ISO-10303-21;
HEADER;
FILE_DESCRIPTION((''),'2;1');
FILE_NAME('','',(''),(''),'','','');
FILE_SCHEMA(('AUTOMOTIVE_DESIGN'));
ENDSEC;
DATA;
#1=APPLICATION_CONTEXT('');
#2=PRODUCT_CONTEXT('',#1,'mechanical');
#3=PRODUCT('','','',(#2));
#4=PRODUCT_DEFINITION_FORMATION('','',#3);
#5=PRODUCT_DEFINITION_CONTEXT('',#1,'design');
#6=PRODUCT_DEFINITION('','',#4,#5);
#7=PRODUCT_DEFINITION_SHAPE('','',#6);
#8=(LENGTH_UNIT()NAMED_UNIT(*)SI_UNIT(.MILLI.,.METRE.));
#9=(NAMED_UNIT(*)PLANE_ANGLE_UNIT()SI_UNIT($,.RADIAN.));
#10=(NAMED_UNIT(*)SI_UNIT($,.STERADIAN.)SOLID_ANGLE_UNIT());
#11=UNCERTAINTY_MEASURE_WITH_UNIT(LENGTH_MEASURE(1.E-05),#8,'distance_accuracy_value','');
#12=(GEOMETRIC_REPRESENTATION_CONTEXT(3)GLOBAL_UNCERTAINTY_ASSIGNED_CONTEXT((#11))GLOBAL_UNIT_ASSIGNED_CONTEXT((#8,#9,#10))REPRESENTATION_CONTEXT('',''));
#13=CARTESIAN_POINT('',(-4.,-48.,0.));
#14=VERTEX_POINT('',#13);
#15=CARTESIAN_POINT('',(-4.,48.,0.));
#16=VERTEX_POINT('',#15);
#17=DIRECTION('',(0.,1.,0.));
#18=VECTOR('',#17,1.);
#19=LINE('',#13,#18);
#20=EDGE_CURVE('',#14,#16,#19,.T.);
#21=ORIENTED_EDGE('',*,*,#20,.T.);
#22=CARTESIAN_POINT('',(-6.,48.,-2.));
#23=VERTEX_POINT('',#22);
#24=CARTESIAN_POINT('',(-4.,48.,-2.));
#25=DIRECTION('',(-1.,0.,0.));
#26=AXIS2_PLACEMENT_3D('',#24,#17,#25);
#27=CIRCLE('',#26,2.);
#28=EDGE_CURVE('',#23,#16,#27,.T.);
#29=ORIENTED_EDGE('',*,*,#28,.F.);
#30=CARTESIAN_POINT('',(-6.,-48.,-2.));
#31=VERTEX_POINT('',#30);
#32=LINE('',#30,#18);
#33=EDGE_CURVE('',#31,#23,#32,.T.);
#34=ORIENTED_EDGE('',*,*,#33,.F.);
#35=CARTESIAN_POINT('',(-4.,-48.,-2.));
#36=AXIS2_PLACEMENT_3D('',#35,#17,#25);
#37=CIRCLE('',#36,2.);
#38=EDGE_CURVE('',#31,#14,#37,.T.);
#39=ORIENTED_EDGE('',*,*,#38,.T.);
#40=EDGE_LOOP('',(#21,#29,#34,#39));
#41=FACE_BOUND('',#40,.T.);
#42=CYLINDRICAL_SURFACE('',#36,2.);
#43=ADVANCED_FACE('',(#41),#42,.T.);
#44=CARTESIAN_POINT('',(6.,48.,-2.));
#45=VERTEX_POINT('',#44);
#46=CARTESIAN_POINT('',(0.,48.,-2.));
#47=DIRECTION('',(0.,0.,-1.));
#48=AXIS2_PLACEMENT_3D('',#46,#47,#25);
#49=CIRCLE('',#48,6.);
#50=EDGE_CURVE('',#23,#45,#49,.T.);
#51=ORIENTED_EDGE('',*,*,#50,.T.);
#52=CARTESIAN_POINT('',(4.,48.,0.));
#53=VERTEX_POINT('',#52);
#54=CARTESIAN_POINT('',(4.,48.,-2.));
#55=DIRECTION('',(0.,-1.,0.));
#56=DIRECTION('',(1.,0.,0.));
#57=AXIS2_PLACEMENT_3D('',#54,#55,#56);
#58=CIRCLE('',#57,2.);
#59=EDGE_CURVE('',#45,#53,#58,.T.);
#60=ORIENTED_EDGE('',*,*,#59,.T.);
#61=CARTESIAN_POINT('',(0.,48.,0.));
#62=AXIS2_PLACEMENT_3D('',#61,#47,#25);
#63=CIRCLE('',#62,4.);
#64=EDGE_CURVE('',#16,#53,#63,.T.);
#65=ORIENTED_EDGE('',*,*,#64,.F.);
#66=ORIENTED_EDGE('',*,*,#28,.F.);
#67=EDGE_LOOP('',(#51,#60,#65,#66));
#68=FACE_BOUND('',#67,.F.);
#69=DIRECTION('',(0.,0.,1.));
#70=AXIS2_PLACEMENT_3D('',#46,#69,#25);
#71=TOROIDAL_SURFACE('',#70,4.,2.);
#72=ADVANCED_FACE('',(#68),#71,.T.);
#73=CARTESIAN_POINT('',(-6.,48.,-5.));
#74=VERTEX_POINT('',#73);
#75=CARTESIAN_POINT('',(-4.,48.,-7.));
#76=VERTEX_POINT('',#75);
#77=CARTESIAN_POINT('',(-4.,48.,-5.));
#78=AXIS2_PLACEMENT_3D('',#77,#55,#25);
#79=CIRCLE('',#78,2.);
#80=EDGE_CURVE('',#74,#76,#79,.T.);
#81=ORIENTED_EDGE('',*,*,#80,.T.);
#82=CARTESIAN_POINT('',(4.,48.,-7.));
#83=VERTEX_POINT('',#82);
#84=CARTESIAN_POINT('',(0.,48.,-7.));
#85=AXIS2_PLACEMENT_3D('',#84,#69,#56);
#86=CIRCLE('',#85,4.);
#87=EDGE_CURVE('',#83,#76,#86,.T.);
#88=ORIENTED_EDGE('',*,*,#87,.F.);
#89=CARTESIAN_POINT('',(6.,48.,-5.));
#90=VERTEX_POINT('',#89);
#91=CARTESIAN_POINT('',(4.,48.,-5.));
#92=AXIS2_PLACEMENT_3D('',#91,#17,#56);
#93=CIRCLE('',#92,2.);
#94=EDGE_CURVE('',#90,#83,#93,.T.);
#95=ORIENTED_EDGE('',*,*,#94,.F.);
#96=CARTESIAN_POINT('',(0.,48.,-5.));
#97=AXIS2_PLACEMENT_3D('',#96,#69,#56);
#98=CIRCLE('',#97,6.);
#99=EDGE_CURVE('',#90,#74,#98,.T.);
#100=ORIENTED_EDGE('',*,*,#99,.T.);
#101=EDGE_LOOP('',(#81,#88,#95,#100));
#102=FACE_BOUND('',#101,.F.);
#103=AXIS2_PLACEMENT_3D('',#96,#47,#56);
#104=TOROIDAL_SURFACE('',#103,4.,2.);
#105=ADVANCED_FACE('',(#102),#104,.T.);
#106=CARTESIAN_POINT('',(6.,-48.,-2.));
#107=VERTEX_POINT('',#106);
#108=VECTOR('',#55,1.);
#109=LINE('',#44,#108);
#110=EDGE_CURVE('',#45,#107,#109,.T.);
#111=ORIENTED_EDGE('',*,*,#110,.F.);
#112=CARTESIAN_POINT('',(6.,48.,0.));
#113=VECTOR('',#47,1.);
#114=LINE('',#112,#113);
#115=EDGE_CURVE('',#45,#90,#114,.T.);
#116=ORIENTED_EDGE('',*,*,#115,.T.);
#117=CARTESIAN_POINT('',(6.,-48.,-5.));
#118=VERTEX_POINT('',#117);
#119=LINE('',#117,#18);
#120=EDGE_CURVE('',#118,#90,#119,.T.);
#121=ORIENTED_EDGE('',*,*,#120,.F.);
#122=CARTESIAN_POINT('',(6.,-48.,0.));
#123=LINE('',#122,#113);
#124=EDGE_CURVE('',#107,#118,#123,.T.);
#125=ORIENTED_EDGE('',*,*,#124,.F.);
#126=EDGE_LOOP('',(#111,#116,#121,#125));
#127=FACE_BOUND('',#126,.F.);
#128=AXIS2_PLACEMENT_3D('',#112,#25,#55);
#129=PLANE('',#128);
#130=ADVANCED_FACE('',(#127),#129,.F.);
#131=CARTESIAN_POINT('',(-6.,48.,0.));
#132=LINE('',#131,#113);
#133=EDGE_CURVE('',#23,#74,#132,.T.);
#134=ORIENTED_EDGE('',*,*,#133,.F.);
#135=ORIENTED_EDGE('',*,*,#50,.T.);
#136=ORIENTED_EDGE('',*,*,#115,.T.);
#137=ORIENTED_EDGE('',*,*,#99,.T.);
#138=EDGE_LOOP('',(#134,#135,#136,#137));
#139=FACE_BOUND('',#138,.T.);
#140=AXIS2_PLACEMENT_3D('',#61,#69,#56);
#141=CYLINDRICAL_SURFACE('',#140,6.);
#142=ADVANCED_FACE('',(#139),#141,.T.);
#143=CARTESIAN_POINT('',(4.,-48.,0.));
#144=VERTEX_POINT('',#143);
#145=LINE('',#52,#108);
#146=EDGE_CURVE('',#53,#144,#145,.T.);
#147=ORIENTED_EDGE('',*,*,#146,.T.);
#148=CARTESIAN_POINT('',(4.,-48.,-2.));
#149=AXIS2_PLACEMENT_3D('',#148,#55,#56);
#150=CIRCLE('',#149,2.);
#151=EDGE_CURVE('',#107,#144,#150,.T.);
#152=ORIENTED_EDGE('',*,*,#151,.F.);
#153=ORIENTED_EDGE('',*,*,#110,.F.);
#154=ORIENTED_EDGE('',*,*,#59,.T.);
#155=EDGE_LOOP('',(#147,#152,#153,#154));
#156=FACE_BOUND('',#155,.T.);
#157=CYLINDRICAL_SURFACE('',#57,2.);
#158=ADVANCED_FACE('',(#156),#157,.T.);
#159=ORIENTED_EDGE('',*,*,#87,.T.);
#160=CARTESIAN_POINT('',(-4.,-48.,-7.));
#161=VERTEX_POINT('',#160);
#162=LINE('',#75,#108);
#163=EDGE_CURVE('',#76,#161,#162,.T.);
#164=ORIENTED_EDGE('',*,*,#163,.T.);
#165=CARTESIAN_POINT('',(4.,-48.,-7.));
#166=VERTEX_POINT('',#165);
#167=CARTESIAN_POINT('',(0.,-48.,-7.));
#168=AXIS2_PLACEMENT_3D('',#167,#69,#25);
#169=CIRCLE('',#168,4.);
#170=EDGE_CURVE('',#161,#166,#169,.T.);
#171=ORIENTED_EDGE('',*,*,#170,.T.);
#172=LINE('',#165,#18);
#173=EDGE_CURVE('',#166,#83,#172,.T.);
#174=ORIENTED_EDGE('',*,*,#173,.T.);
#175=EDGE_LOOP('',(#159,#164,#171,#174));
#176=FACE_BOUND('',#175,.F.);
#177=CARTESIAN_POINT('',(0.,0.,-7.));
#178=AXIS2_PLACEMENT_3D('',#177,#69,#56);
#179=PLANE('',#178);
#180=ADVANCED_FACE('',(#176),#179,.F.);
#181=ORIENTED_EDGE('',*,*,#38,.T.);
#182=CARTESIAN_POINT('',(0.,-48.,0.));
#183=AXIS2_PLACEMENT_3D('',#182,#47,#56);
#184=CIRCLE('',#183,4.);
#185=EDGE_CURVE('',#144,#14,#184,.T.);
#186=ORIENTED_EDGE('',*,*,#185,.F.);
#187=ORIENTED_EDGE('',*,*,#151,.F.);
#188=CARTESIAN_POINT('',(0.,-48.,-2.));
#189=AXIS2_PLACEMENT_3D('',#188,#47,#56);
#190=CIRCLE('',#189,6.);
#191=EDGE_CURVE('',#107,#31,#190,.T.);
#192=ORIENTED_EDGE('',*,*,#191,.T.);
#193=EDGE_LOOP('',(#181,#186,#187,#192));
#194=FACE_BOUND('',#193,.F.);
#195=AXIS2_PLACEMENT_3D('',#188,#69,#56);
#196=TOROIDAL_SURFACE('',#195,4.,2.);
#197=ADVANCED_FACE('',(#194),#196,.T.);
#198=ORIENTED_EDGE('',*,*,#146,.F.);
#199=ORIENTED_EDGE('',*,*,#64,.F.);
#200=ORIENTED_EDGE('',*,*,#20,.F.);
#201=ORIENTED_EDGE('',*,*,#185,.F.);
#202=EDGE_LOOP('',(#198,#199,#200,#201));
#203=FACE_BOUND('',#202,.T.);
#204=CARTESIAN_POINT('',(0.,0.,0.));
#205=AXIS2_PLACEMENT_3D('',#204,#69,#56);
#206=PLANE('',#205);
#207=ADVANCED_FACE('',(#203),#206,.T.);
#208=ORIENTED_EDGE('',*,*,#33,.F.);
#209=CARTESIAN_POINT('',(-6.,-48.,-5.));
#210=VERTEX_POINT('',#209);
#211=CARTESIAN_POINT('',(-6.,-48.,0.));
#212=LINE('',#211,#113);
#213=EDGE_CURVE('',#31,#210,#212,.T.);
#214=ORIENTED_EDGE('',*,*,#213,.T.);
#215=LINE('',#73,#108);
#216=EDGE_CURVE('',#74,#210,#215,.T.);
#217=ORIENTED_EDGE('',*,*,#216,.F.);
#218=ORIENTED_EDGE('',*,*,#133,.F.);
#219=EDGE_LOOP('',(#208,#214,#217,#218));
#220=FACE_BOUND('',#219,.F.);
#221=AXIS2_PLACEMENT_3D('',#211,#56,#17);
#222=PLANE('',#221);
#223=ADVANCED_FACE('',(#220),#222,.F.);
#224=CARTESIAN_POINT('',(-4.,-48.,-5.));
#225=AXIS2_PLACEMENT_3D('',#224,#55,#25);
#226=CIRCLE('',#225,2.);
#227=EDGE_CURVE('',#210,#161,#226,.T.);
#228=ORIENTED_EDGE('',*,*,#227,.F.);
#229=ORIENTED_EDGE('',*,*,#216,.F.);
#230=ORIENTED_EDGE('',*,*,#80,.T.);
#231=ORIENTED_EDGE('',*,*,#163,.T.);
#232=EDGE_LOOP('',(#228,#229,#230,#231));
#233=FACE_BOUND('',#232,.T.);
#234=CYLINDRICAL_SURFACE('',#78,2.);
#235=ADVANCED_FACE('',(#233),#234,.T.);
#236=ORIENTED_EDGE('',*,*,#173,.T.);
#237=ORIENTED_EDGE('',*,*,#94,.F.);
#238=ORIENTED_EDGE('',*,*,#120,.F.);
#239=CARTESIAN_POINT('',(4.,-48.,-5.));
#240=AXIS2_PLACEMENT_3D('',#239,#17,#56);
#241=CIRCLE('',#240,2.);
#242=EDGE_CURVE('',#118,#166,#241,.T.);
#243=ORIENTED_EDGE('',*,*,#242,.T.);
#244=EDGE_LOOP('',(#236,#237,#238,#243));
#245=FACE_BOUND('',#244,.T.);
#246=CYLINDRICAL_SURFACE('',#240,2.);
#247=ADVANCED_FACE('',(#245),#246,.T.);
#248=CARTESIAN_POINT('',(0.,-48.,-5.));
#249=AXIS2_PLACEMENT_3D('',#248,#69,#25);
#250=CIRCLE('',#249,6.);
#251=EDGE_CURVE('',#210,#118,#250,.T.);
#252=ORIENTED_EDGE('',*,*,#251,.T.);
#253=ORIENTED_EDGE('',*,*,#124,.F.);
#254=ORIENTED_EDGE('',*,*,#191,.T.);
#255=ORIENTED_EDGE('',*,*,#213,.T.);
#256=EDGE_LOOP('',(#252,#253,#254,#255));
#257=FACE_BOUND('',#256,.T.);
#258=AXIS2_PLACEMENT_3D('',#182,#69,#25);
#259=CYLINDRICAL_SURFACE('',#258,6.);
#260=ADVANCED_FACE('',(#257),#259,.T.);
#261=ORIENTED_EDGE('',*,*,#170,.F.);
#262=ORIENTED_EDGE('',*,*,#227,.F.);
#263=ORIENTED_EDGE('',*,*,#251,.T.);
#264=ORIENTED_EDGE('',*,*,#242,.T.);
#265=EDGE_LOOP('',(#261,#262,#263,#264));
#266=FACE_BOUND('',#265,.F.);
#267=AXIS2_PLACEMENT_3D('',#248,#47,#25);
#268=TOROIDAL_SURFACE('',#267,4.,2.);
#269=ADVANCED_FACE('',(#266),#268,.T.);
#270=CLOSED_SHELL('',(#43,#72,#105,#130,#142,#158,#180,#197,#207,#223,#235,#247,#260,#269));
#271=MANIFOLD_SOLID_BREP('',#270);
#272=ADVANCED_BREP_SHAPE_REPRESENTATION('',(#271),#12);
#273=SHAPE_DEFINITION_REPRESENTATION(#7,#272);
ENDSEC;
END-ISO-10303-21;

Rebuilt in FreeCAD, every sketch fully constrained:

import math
import FreeCAD as App
import Part
import Sketcher


def edges_at(feature, points):
    """Names of the edges that pass closest to the given points."""
    edges = feature.Shape.Edges
    near = lambda p: min(range(len(edges)), key=lambda i: edges[i].distToShape(Part.Vertex(*p))[0])
    return sorted({f"Edge{near(p) + 1}" for p in points})

doc = App.newDocument("Part")
body = doc.addObject("PartDesign::Body", "Body")

sketch1 = doc.addObject("Sketcher::SketchObject", "Sketch")
body.addObject(sketch1)
sketch1.AttachmentSupport = (doc.XY_Plane, [""])
sketch1.MapMode = "FlatFace"
sketch1.addGeometry(Part.ArcOfCircle(Part.Circle(App.Vector(0, -48, 0), App.Vector(0, 0, 1), 6), math.radians(180), math.radians(360)), False)
sketch1.addGeometry(Part.LineSegment(App.Vector(6, -48, 0), App.Vector(6, 48, 0)), False)
sketch1.addGeometry(Part.ArcOfCircle(Part.Circle(App.Vector(0, 48, 0), App.Vector(0, 0, 1), 6), math.radians(0), math.radians(180)), False)
sketch1.addGeometry(Part.LineSegment(App.Vector(-6, 48, 0), App.Vector(-6, -48, 0)), False)
sketch1.addConstraint(Sketcher.Constraint("Tangent", 0, 2, 1, 1))
sketch1.addConstraint(Sketcher.Constraint("Tangent", 1, 2, 2, 1))
sketch1.addConstraint(Sketcher.Constraint("Tangent", 2, 2, 3, 1))
sketch1.addConstraint(Sketcher.Constraint("Tangent", 3, 2, 0, 1))
sketch1.addConstraint(Sketcher.Constraint("Vertical", 1))
sketch1.addConstraint(Sketcher.Constraint("Vertical", 3))
sketch1.addConstraint(Sketcher.Constraint("Symmetric", 0, 3, 2, 3, -1, 1))
sketch1.addConstraint(Sketcher.Constraint("Radius", 0, 6.0))
sketch1.addConstraint(Sketcher.Constraint("DistanceY", 1, 1, 1, 2, 96.0))
pad1 = doc.addObject("PartDesign::Pad", "Pad")
body.addObject(pad1)
pad1.Profile = sketch1
pad1.Length = 7
pad1.Reversed = True
doc.recompute()

fillet = doc.addObject("PartDesign::Fillet", "Fillet")
body.addObject(fillet)
fillet.Base = (pad1, edges_at(pad1, [
    (0, -54, -7),
    (6, 0, -7),
    (0, 54, -7),
    (-6, 0, -7),
]))
fillet.Radius = 2
doc.recompute()

fillet2 = doc.addObject("PartDesign::Fillet", "Fillet001")
body.addObject(fillet2)
fillet2.Base = (fillet, edges_at(fillet, [(-6, 0, 0), (6, 0, 0)]))
fillet2.Radius = 2

doc.recompute()
